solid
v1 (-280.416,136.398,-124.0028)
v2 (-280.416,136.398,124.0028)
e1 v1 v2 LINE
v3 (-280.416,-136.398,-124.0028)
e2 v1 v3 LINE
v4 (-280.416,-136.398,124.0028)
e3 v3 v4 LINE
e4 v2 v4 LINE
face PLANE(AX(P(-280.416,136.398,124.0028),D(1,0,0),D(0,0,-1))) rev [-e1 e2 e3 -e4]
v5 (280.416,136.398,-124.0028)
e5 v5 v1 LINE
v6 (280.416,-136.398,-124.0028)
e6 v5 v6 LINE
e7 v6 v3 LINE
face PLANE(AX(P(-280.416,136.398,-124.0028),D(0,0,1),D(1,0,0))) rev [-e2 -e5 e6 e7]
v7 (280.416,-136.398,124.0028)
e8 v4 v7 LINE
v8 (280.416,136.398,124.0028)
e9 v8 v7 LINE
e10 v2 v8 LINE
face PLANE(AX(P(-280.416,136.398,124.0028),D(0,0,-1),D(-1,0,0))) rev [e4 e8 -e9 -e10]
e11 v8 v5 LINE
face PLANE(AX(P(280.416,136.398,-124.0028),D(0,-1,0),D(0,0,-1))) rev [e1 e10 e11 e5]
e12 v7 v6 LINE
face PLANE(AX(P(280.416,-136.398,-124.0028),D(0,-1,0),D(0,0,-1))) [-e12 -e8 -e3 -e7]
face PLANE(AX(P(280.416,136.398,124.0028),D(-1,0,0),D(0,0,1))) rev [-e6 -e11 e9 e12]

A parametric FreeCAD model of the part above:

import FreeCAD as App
import Part
import Sketcher

V = App.Vector
Q = App.Units.Quantity

doc = App.newDocument("Part")
body = doc.addObject("PartDesign::Body", "Body")

sketch1 = doc.addObject("Sketcher::SketchObject", "Sketch")
body.addObject(sketch1)
sketch1.AttachmentSupport = (doc.XZ_Plane, [""])
sketch1.MapMode = "FlatFace"
sketch1.addGeometry(Part.LineSegment(V(-280.416, -124.0028, 0), V(-280.416, 124.0028, 0)), False)
sketch1.addGeometry(Part.LineSegment(V(-280.416, 124.0028, 0), V(280.416, 124.0028, 0)), False)
sketch1.addGeometry(Part.LineSegment(V(280.416, 124.0028, 0), V(280.416, -124.0028, 0)), False)
sketch1.addGeometry(Part.LineSegment(V(280.416, -124.0028, 0), V(-280.416, -124.0028, 0)), False)
sketch1.addConstraint(Sketcher.Constraint("Coincident", 0, 2, 1, 1))
sketch1.addConstraint(Sketcher.Constraint("Coincident", 1, 2, 2, 1))
sketch1.addConstraint(Sketcher.Constraint("Coincident", 2, 2, 3, 1))
sketch1.addConstraint(Sketcher.Constraint("Coincident", 3, 2, 0, 1))
sketch1.addConstraint(Sketcher.Constraint("Vertical", 0))
sketch1.addConstraint(Sketcher.Constraint("Horizontal", 1))
sketch1.addConstraint(Sketcher.Constraint("Vertical", 2))
sketch1.addConstraint(Sketcher.Constraint("Horizontal", 3))
sketch1.addConstraint(Sketcher.Constraint("Symmetric", 0, 2, 2, 2, -1, 1))
sketch1.addConstraint(Sketcher.Constraint("DistanceX", 1, 1, 1, 2, Q("22.08 in")))
sketch1.addConstraint(Sketcher.Constraint("DistanceY", 0, 1, 0, 2, Q("9.764 in")))
pad1 = doc.addObject("PartDesign::Pad", "Pad")
body.addObject(pad1)
pad1.Profile = sketch1
pad1.Length = Q("10.74 in")
pad1.Midplane = True

doc.recompute()
